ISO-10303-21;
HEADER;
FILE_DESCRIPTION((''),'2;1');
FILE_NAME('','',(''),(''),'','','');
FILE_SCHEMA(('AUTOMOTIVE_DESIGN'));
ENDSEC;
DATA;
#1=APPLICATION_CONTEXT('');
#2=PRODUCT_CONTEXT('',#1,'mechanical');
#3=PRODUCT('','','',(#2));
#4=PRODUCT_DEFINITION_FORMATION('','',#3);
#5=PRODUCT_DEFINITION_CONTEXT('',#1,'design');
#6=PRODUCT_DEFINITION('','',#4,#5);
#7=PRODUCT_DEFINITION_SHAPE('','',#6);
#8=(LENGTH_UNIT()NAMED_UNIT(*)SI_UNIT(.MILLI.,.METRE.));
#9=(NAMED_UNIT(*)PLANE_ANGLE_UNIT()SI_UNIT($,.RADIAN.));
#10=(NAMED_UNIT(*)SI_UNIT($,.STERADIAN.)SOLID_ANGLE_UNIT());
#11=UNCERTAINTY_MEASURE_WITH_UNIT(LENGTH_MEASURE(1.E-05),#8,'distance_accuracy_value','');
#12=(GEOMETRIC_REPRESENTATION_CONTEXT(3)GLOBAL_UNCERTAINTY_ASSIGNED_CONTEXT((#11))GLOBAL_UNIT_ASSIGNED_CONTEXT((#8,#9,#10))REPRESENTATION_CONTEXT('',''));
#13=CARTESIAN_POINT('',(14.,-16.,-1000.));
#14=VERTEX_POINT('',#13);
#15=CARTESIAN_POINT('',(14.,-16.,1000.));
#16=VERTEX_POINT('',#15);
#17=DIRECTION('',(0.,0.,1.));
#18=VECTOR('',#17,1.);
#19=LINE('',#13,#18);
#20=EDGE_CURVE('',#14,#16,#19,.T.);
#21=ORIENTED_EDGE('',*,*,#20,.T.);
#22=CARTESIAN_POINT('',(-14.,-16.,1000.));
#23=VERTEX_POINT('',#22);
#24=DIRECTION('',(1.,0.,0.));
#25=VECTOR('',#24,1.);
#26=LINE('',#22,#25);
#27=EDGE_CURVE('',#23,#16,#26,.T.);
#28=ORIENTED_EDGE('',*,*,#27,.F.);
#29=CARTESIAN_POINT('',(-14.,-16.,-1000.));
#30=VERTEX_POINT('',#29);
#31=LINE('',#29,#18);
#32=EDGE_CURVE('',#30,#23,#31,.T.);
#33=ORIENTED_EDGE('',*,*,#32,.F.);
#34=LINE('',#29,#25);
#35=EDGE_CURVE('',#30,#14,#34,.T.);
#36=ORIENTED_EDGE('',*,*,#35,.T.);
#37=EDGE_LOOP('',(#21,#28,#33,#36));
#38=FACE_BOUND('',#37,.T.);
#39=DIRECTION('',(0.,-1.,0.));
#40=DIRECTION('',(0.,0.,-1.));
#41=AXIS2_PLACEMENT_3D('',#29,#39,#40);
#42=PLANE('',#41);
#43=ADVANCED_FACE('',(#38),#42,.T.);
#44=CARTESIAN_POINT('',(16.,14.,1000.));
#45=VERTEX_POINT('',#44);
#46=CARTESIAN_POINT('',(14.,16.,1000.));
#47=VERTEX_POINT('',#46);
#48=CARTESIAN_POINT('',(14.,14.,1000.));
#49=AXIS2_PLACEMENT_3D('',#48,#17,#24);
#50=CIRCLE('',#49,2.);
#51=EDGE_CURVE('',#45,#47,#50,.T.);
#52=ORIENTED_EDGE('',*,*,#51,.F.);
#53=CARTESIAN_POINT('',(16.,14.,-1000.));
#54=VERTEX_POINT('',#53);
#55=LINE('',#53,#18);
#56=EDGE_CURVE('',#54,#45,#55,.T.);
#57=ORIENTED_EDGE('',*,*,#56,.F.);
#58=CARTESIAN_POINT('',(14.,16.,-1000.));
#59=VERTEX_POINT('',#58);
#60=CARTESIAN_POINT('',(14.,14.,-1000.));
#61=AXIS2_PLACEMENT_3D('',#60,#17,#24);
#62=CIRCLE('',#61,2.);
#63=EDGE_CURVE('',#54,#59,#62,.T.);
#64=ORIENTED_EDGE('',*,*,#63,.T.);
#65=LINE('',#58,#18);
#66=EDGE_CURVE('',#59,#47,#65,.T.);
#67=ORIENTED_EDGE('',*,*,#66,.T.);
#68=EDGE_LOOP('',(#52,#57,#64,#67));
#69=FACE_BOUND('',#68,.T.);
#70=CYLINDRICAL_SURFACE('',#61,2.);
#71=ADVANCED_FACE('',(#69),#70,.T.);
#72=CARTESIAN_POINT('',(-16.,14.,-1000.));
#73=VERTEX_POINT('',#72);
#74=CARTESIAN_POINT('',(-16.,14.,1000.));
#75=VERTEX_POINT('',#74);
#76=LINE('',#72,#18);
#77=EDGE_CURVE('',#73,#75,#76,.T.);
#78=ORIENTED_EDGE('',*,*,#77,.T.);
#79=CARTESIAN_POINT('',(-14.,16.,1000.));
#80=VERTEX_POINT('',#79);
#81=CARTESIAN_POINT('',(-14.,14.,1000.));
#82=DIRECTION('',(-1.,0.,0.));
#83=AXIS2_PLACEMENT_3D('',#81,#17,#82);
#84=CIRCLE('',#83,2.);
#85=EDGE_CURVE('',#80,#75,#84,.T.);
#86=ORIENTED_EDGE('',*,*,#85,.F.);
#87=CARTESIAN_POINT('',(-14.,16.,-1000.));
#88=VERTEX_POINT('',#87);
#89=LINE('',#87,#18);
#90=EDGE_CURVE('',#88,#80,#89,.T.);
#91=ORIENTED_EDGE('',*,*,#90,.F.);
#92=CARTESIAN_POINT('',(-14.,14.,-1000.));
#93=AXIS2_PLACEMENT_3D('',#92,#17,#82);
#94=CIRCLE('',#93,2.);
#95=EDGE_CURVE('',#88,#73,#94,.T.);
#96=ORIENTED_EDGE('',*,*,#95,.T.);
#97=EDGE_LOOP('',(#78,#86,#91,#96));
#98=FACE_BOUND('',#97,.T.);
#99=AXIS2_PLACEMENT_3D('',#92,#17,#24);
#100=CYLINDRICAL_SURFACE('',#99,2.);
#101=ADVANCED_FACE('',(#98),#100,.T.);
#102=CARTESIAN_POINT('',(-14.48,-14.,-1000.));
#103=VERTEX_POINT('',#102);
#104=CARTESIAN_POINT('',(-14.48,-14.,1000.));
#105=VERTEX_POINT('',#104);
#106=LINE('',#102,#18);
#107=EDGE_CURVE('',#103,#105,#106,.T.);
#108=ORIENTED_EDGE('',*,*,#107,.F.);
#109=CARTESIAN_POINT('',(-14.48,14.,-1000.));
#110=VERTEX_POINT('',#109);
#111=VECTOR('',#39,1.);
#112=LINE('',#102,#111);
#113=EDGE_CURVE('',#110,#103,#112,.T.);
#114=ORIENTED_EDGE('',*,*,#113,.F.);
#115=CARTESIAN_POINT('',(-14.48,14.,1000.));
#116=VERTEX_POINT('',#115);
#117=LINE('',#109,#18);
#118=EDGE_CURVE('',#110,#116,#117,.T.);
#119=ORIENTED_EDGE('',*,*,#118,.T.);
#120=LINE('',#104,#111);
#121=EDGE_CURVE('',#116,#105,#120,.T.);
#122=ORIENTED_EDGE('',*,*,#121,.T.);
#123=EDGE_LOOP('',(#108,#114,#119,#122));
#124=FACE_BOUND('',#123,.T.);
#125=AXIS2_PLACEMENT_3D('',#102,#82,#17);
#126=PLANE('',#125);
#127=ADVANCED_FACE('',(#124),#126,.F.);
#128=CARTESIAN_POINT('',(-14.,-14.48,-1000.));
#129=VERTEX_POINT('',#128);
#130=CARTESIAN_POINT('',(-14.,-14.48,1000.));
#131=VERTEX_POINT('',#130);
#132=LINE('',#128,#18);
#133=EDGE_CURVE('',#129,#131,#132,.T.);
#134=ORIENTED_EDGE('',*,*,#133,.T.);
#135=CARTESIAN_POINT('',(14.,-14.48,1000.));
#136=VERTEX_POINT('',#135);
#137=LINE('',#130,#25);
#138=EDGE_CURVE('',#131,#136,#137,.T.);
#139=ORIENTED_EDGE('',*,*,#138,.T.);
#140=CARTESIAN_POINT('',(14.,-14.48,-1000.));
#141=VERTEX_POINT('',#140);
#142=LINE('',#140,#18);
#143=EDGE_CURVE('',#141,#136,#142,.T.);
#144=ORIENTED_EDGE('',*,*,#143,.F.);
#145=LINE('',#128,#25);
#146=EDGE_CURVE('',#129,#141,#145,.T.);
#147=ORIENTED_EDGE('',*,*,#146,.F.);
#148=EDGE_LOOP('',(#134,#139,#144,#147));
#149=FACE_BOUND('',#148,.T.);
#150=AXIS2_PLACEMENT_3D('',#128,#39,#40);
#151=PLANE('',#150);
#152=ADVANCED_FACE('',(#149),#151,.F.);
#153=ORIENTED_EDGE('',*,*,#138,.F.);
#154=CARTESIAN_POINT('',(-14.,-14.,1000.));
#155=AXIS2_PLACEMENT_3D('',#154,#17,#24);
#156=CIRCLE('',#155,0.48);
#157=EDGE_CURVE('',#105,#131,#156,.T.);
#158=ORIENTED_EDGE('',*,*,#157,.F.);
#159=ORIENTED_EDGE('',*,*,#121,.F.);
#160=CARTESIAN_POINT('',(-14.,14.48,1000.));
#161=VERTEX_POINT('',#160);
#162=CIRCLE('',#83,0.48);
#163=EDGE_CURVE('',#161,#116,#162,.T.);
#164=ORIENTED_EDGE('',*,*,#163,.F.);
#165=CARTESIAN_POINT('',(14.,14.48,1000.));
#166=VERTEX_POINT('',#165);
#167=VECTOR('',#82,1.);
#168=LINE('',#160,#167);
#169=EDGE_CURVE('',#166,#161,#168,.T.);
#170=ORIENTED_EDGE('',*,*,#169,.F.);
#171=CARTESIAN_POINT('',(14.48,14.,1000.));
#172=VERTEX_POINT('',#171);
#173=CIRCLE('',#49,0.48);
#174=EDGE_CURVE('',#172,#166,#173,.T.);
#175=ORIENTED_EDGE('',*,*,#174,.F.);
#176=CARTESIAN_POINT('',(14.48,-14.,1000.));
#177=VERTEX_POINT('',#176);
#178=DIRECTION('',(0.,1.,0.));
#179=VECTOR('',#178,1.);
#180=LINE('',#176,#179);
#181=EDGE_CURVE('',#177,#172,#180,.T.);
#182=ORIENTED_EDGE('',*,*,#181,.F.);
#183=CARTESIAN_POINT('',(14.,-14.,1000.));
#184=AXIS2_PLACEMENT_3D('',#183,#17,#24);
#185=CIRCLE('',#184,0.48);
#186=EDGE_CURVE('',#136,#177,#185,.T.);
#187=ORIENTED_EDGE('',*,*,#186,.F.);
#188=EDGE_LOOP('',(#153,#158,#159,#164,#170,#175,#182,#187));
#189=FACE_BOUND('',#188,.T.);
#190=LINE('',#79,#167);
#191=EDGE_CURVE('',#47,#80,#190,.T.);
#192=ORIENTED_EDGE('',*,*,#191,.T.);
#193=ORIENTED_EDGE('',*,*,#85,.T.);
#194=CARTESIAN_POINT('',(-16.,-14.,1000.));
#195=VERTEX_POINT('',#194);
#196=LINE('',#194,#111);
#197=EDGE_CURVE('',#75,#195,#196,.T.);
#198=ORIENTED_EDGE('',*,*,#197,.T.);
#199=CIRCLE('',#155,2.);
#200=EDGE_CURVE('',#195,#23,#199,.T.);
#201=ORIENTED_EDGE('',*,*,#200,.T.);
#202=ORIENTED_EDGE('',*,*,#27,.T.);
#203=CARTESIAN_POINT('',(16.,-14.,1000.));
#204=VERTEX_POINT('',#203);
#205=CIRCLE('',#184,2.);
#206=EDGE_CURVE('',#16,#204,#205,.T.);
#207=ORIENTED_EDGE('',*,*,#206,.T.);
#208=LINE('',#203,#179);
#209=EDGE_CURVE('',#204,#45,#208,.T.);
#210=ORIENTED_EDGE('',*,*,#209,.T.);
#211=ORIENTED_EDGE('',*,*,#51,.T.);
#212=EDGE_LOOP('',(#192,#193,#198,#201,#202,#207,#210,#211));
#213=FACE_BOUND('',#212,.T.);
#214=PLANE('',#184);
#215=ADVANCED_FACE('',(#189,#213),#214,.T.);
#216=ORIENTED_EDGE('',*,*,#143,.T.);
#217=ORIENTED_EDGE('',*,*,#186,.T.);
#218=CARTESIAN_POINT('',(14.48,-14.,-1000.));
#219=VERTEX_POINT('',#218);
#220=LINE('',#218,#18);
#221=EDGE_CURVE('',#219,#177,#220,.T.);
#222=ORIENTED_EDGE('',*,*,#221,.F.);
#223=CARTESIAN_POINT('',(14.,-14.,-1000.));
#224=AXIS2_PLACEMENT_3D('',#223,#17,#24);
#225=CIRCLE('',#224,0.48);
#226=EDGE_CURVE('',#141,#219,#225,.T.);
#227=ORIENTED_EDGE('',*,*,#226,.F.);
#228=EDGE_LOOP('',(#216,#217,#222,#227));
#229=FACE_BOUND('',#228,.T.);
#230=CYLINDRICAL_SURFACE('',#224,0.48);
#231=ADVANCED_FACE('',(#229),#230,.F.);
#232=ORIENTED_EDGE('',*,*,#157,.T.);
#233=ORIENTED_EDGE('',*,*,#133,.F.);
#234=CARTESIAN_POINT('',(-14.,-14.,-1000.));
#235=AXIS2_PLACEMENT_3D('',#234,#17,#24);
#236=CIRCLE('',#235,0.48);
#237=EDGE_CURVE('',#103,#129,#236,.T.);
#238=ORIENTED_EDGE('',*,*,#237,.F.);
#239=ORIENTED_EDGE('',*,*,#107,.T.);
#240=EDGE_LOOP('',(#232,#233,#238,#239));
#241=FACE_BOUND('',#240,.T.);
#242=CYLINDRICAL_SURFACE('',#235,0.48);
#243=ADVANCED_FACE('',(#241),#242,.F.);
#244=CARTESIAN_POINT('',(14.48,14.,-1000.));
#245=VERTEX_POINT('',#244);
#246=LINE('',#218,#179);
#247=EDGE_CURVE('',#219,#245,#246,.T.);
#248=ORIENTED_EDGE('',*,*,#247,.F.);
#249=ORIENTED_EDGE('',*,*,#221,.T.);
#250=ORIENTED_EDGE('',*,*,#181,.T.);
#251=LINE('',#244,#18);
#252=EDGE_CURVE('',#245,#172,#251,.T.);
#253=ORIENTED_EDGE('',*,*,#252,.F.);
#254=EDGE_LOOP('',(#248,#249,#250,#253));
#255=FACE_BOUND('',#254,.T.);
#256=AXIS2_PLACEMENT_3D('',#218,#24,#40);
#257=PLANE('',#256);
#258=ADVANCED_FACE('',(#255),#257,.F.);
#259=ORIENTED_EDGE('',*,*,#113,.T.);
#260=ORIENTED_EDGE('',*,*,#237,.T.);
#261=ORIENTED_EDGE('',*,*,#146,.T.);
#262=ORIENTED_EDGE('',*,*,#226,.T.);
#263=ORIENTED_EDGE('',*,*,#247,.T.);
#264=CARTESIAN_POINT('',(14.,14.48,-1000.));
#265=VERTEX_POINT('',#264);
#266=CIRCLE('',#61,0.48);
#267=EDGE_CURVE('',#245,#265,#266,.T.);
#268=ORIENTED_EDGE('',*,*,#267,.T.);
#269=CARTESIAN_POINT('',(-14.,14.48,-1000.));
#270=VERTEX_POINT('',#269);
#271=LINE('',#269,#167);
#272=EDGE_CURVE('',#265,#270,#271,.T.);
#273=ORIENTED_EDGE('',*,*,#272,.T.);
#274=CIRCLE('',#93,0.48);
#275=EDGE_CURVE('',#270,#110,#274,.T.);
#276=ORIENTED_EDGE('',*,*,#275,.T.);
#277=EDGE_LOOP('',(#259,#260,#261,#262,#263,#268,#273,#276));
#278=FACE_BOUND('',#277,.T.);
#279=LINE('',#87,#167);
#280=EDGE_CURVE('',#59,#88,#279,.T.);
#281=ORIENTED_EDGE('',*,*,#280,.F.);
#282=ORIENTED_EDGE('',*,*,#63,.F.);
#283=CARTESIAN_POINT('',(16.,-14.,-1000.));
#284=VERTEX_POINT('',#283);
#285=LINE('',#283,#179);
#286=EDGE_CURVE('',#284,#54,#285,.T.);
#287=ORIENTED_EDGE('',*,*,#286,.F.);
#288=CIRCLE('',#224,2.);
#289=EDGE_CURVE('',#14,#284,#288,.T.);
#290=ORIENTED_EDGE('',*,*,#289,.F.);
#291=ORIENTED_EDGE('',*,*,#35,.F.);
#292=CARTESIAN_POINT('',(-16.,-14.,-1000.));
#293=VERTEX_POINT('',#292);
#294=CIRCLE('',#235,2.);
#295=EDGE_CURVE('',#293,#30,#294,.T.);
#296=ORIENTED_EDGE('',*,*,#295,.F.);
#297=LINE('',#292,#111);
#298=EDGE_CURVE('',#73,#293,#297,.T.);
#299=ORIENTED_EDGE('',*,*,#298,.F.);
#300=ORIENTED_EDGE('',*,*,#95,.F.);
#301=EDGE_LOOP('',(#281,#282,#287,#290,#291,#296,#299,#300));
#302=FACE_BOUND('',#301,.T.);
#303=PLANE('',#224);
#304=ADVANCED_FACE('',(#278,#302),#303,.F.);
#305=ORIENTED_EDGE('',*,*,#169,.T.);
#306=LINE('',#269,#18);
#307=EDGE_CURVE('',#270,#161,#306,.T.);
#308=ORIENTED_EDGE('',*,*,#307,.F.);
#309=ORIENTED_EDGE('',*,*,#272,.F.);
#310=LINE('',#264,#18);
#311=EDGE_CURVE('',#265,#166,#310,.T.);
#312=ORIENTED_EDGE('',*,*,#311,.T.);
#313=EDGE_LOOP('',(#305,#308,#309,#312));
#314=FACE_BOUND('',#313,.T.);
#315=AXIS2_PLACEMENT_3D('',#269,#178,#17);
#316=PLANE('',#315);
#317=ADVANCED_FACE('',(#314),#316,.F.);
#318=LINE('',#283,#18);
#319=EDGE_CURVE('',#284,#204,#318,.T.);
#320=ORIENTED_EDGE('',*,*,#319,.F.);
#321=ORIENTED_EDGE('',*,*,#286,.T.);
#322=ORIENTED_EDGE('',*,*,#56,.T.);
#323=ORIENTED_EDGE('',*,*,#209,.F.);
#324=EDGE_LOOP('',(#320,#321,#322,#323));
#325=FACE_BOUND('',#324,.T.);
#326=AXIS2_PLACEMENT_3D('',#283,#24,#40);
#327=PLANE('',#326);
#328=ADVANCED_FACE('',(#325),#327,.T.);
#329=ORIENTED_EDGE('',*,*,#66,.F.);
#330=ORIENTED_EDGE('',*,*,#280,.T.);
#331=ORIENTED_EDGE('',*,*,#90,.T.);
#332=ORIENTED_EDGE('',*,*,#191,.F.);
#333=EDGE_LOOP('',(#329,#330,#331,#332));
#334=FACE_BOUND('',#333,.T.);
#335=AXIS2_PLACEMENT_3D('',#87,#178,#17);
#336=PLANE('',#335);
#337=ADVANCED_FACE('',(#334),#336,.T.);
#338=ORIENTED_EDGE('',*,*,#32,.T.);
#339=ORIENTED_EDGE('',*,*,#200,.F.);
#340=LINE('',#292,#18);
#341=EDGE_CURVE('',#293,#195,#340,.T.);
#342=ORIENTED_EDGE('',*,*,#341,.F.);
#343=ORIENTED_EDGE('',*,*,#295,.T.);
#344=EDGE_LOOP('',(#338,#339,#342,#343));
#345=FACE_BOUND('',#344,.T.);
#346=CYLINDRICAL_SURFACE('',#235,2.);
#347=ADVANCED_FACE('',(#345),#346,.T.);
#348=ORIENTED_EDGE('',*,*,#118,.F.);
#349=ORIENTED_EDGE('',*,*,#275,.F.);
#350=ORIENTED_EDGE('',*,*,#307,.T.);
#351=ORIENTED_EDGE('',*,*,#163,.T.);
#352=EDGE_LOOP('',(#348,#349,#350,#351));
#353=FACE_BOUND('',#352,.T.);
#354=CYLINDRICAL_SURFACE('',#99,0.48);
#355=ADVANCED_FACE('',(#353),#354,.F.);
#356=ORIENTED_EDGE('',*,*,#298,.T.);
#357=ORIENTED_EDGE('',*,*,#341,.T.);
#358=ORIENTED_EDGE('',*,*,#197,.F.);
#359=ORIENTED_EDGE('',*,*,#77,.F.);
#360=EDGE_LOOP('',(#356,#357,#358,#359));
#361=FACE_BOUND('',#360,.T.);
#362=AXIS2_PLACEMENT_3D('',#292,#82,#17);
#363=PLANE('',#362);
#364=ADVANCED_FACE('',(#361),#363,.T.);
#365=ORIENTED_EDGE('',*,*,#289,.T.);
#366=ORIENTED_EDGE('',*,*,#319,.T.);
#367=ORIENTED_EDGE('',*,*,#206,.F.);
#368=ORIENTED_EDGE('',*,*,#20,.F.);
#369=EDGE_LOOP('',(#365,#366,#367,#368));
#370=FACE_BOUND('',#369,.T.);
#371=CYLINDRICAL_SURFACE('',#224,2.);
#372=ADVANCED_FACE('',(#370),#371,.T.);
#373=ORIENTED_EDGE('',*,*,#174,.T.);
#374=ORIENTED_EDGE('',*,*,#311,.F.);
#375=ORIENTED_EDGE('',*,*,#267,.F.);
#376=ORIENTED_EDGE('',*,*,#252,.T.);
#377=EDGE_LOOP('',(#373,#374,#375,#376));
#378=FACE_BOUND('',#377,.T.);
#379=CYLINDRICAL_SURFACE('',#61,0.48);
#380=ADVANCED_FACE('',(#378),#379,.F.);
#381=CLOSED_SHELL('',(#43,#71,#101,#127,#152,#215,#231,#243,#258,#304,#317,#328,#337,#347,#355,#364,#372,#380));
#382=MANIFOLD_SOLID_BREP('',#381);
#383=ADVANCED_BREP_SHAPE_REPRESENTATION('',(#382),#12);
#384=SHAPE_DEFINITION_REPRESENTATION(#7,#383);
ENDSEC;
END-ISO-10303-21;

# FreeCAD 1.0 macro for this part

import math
import FreeCAD as App
import Part
import Sketcher
from FreeCAD import Vector

doc = App.newDocument("Part")
body = doc.addObject("PartDesign::Body", "Body")

# Sketch on XY plane
sketch1 = body.newObject("Sketcher::SketchObject", "Sketch")
sketch1.AttachmentSupport = (doc.getObject("XY_Plane"), [""])
sketch1.MapMode = "FlatFace"
sketch1.addGeometry([
    Part.LineSegment(Vector(-14, -16, 0), Vector(14, -16, 0)),  # 0
    Part.ArcOfCircle(Part.Circle(Vector(14, -14, 0), Vector(0, 0, 1), 2), math.radians(-90), math.radians(0)),  # 1
    Part.LineSegment(Vector(16, -14, 0), Vector(16, 14, 0)),  # 2
    Part.ArcOfCircle(Part.Circle(Vector(14, 14, 0), Vector(0, 0, 1), 2), math.radians(0), math.radians(90)),  # 3
    Part.LineSegment(Vector(14, 16, 0), Vector(-14, 16, 0)),  # 4
    Part.ArcOfCircle(Part.Circle(Vector(-14, 14, 0), Vector(0, 0, 1), 2), math.radians(90), math.radians(180)),  # 5
    Part.LineSegment(Vector(-16, 14, 0), Vector(-16, -14, 0)),  # 6
    Part.ArcOfCircle(Part.Circle(Vector(-14, -14, 0), Vector(0, 0, 1), 2), math.radians(-180), math.radians(-90)),  # 7
    Part.ArcOfCircle(Part.Circle(Vector(-14, 14, 0), Vector(0, 0, 1), 0.48), math.radians(90), math.radians(180)),  # 8
    Part.LineSegment(Vector(-14, 14.48, 0), Vector(14, 14.48, 0)),  # 9
    Part.ArcOfCircle(Part.Circle(Vector(14, 14, 0), Vector(0, 0, 1), 0.48), math.radians(0), math.radians(90)),  # 10
    Part.LineSegment(Vector(14.48, 14, 0), Vector(14.48, -14, 0)),  # 11
    Part.ArcOfCircle(Part.Circle(Vector(14, -14, 0), Vector(0, 0, 1), 0.48), math.radians(-90), math.radians(0)),  # 12
    Part.LineSegment(Vector(14, -14.48, 0), Vector(-14, -14.48, 0)),  # 13
    Part.ArcOfCircle(Part.Circle(Vector(-14, -14, 0), Vector(0, 0, 1), 0.48), math.radians(180), math.radians(270)),  # 14
    Part.LineSegment(Vector(-14.48, -14, 0), Vector(-14.48, 14, 0)),  # 15
], False)
sketch1.addConstraint([
    Sketcher.Constraint("Tangent", 0, 2, 1, 1),
    Sketcher.Constraint("Tangent", 1, 2, 2, 1),
    Sketcher.Constraint("Tangent", 2, 2, 3, 1),
    Sketcher.Constraint("Tangent", 3, 2, 4, 1),
    Sketcher.Constraint("Tangent", 4, 2, 5, 1),
    Sketcher.Constraint("Tangent", 5, 2, 6, 1),
    Sketcher.Constraint("Tangent", 6, 2, 7, 1),
    Sketcher.Constraint("Tangent", 7, 2, 0, 1),
    Sketcher.Constraint("Tangent", 8, 1, 9, 1),
    Sketcher.Constraint("Tangent", 9, 2, 10, 2),
    Sketcher.Constraint("Tangent", 10, 1, 11, 1),
    Sketcher.Constraint("Tangent", 11, 2, 12, 2),
    Sketcher.Constraint("Tangent", 12, 1, 13, 1),
    Sketcher.Constraint("Tangent", 13, 2, 14, 2),
    Sketcher.Constraint("Tangent", 14, 1, 15, 1),
    Sketcher.Constraint("Tangent", 15, 2, 8, 2),
    Sketcher.Constraint("Horizontal", 0),
    Sketcher.Constraint("Vertical", 2),
    Sketcher.Constraint("Horizontal", 4),
    Sketcher.Constraint("Vertical", 6),
    Sketcher.Constraint("Horizontal", 9),
    Sketcher.Constraint("Vertical", 11),
    Sketcher.Constraint("Horizontal", 13),
    Sketcher.Constraint("Vertical", 15),
    Sketcher.Constraint("Coincident", 8, 3, 5, 3),
    Sketcher.Constraint("Coincident", 10, 3, 3, 3),
    Sketcher.Constraint("Coincident", 12, 3, 1, 3),
    Sketcher.Constraint("Equal", 1, 3),
    Sketcher.Constraint("Equal", 3, 5),
    Sketcher.Constraint("Equal", 5, 7),
    Sketcher.Constraint("Equal", 12, 14),
    Sketcher.Constraint("Symmetric", 1, 3, 5, 3, -1, 1),
    Sketcher.Constraint("Equal", 13, 2),
    Sketcher.Constraint("Radius", 1, 2.0),
    Sketcher.Constraint("DistanceX", 0, 1, 0, 2, 28.0),
    Sketcher.Constraint("Radius", 8, 0.48),
])
pad1 = body.newObject("PartDesign::Pad", "Pad")
pad1.Profile = sketch1
pad1.Type = "TwoLengths"
pad1.Length = 1000
pad1.Length2 = 1000

doc.recompute()
